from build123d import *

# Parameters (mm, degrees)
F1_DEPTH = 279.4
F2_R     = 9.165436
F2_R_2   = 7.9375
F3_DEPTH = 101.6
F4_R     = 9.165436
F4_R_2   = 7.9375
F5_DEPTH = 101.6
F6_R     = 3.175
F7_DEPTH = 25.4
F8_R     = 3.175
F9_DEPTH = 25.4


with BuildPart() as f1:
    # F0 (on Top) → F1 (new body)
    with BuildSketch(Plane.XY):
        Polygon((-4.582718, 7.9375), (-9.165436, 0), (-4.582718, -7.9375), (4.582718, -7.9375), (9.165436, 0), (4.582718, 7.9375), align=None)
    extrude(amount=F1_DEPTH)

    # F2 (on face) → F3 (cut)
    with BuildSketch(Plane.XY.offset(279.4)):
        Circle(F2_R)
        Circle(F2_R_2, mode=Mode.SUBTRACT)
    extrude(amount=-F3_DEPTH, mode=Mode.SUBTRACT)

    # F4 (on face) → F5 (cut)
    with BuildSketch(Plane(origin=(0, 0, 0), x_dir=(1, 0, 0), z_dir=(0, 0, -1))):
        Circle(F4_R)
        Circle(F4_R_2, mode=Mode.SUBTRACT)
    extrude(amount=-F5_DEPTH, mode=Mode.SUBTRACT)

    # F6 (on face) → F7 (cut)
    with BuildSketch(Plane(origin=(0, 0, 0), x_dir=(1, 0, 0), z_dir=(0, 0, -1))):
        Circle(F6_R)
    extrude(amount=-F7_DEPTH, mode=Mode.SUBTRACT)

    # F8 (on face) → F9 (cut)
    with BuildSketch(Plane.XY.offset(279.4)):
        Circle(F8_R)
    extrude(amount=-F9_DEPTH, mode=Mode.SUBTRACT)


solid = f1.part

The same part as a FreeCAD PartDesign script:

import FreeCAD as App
import Part
import Sketcher
Q = App.Units.Quantity

doc = App.newDocument("Part")
params = doc.addObject("Spreadsheet::Sheet", "Params")
for row, (alias, value) in enumerate([
    ("pad1_length", "11 in"),
    ("sketch2_diameter", "0.625 in"),
    ("pocket1_length", "4 in"),
    ("sketch3_diameter", "0.625 in"),
    ("pocket2_length", "4 in"),
    ("sketch4_diameter", "0.25 in"),
    ("pocket3_length", "1 in"),
    ("sketch5_diameter", "0.25 in"),
    ("pocket4_length", "1 in"),
], start=1):
    params.set(f"A{row}", alias)
    params.set(f"B{row}", "=" + value)
    params.setAlias(f"B{row}", alias)

body = doc.addObject("PartDesign::Body", "Body")

# Sketch on XY plane
sketch1 = body.newObject("Sketcher::SketchObject", "Sketch")
sketch1.AttachmentSupport = (doc.getObject("XY_Plane"), [""])
sketch1.MapMode = "FlatFace"
sketch1.addGeometry([
    Part.LineSegment(App.Vector(-5, 8, 0), App.Vector(-9, 0, 0)),  # 0
    Part.LineSegment(App.Vector(-9, 0, 0), App.Vector(-5, -8, 0)),  # 1
    Part.LineSegment(App.Vector(-5, -8, 0), App.Vector(5, -8, 0)),  # 2
    Part.LineSegment(App.Vector(5, -8, 0), App.Vector(9, 0, 0)),  # 3
    Part.LineSegment(App.Vector(9, 0, 0), App.Vector(5, 8, 0)),  # 4
    Part.LineSegment(App.Vector(5, 8, 0), App.Vector(-5, 8, 0)),  # 5
], False)
sketch1.addConstraint([
    Sketcher.Constraint("Coincident", 0, 2, 1, 1),
    Sketcher.Constraint("Coincident", 1, 2, 2, 1),
    Sketcher.Constraint("Coincident", 2, 2, 3, 1),
    Sketcher.Constraint("Coincident", 3, 2, 4, 1),
    Sketcher.Constraint("Coincident", 4, 2, 5, 1),
    Sketcher.Constraint("Coincident", 5, 2, 0, 1),
    Sketcher.Constraint("Horizontal", 2),
    Sketcher.Constraint("Horizontal", 5),
    Sketcher.Constraint("Symmetric", 0, 2, 3, 2, -1, 1),
    Sketcher.Constraint("Symmetric", 1, 2, 4, 2, -1, 1),
    Sketcher.Constraint("PointOnObject", 0, 2, -1),
    Sketcher.Constraint("Parallel", 0, 3),
    Sketcher.Constraint("Vertical", 2, 2, 4, 2),
    Sketcher.Constraint("Angle", 0, Q("-120.000001 deg")),
    Sketcher.Constraint("DistanceY", 1, 2, -1, 1, Q("0.3125 in")),
    Sketcher.Constraint("DistanceX", 2, 1, 2, 2, 9.165436),
])
pad1 = body.newObject("PartDesign::Pad", "Pad")
pad1.Profile = sketch1
pad1.setExpression("Length", "Params.pad1_length")

# Sketch on XY plane
sketch2 = body.newObject("Sketcher::SketchObject", "Sketch001")
sketch2.AttachmentSupport = (doc.getObject("XY_Plane"), [""])
sketch2.MapMode = "FlatFace"
sketch2.AttachmentOffset = App.Placement(App.Vector(0, 0, 11 * 25.4), App.Rotation())
sketch2.addGeometry([
    Part.Circle(App.Vector(0, 0, 0), App.Vector(0, 0, 1), 9),
    Part.Circle(App.Vector(0, 0, 0), App.Vector(0, 0, 1), 8),
], False)
sketch2.addConstraint([
    Sketcher.Constraint("Coincident", 0, 3, -1, 1),
    Sketcher.Constraint("Coincident", 1, 3, -1, 1),
    Sketcher.Constraint("Diameter", 1, Q("0.625 in")),
    Sketcher.Constraint("Diameter", 0, 18.330872),
])
sketch2.setExpression("Constraints[2]", "Params.sketch2_diameter")
pocket1 = body.newObject("PartDesign::Pocket", "Pocket")
pocket1.Profile = sketch2
pocket1.setExpression("Length", "Params.pocket1_length")

# Sketch on XY plane
sketch3 = body.newObject("Sketcher::SketchObject", "Sketch002")
sketch3.AttachmentSupport = (doc.getObject("XY_Plane"), [""])
sketch3.MapMode = "FlatFace"
sketch3.addGeometry([
    Part.Circle(App.Vector(0, 0, 0), App.Vector(0, 0, 1), 9),
    Part.Circle(App.Vector(0, 0, 0), App.Vector(0, 0, 1), 8),
], False)
sketch3.addConstraint([
    Sketcher.Constraint("Coincident", 0, 3, -1, 1),
    Sketcher.Constraint("Coincident", 1, 3, -1, 1),
    Sketcher.Constraint("Diameter", 1, Q("0.625 in")),
    Sketcher.Constraint("Diameter", 0, 18.330872),
])
sketch3.setExpression("Constraints[2]", "Params.sketch3_diameter")
pocket2 = body.newObject("PartDesign::Pocket", "Pocket001")
pocket2.Profile = sketch3
pocket2.setExpression("Length", "Params.pocket2_length")
pocket2.Reversed = True

# Sketch on XY plane
sketch4 = body.newObject("Sketcher::SketchObject", "Sketch003")
sketch4.AttachmentSupport = (doc.getObject("XY_Plane"), [""])
sketch4.MapMode = "FlatFace"
sketch4.addGeometry(Part.Circle(App.Vector(0, 0, 0), App.Vector(0, 0, 1), 3.2), False)
sketch4.addConstraint([
    Sketcher.Constraint("Coincident", 0, 3, -1, 1),
    Sketcher.Constraint("Diameter", 0, Q("0.25 in")),
])
sketch4.setExpression("Constraints[1]", "Params.sketch4_diameter")
pocket3 = body.newObject("PartDesign::Pocket", "Pocket002")
pocket3.Profile = sketch4
pocket3.setExpression("Length", "Params.pocket3_length")
pocket3.Reversed = True

# Sketch on XY plane
sketch5 = body.newObject("Sketcher::SketchObject", "Sketch004")
sketch5.AttachmentSupport = (doc.getObject("XY_Plane"), [""])
sketch5.MapMode = "FlatFace"
sketch5.AttachmentOffset = App.Placement(App.Vector(0, 0, 11 * 25.4), App.Rotation())
sketch5.addGeometry(Part.Circle(App.Vector(0, 0, 0), App.Vector(0, 0, 1), 3.2), False)
sketch5.addConstraint([
    Sketcher.Constraint("Coincident", 0, 3, -1, 1),
    Sketcher.Constraint("Diameter", 0, Q("0.25 in")),
])
sketch5.setExpression("Constraints[1]", "Params.sketch5_diameter")
pocket4 = body.newObject("PartDesign::Pocket", "Pocket003")
pocket4.Profile = sketch5
pocket4.setExpression("Length", "Params.pocket4_length")

doc.recompute()
